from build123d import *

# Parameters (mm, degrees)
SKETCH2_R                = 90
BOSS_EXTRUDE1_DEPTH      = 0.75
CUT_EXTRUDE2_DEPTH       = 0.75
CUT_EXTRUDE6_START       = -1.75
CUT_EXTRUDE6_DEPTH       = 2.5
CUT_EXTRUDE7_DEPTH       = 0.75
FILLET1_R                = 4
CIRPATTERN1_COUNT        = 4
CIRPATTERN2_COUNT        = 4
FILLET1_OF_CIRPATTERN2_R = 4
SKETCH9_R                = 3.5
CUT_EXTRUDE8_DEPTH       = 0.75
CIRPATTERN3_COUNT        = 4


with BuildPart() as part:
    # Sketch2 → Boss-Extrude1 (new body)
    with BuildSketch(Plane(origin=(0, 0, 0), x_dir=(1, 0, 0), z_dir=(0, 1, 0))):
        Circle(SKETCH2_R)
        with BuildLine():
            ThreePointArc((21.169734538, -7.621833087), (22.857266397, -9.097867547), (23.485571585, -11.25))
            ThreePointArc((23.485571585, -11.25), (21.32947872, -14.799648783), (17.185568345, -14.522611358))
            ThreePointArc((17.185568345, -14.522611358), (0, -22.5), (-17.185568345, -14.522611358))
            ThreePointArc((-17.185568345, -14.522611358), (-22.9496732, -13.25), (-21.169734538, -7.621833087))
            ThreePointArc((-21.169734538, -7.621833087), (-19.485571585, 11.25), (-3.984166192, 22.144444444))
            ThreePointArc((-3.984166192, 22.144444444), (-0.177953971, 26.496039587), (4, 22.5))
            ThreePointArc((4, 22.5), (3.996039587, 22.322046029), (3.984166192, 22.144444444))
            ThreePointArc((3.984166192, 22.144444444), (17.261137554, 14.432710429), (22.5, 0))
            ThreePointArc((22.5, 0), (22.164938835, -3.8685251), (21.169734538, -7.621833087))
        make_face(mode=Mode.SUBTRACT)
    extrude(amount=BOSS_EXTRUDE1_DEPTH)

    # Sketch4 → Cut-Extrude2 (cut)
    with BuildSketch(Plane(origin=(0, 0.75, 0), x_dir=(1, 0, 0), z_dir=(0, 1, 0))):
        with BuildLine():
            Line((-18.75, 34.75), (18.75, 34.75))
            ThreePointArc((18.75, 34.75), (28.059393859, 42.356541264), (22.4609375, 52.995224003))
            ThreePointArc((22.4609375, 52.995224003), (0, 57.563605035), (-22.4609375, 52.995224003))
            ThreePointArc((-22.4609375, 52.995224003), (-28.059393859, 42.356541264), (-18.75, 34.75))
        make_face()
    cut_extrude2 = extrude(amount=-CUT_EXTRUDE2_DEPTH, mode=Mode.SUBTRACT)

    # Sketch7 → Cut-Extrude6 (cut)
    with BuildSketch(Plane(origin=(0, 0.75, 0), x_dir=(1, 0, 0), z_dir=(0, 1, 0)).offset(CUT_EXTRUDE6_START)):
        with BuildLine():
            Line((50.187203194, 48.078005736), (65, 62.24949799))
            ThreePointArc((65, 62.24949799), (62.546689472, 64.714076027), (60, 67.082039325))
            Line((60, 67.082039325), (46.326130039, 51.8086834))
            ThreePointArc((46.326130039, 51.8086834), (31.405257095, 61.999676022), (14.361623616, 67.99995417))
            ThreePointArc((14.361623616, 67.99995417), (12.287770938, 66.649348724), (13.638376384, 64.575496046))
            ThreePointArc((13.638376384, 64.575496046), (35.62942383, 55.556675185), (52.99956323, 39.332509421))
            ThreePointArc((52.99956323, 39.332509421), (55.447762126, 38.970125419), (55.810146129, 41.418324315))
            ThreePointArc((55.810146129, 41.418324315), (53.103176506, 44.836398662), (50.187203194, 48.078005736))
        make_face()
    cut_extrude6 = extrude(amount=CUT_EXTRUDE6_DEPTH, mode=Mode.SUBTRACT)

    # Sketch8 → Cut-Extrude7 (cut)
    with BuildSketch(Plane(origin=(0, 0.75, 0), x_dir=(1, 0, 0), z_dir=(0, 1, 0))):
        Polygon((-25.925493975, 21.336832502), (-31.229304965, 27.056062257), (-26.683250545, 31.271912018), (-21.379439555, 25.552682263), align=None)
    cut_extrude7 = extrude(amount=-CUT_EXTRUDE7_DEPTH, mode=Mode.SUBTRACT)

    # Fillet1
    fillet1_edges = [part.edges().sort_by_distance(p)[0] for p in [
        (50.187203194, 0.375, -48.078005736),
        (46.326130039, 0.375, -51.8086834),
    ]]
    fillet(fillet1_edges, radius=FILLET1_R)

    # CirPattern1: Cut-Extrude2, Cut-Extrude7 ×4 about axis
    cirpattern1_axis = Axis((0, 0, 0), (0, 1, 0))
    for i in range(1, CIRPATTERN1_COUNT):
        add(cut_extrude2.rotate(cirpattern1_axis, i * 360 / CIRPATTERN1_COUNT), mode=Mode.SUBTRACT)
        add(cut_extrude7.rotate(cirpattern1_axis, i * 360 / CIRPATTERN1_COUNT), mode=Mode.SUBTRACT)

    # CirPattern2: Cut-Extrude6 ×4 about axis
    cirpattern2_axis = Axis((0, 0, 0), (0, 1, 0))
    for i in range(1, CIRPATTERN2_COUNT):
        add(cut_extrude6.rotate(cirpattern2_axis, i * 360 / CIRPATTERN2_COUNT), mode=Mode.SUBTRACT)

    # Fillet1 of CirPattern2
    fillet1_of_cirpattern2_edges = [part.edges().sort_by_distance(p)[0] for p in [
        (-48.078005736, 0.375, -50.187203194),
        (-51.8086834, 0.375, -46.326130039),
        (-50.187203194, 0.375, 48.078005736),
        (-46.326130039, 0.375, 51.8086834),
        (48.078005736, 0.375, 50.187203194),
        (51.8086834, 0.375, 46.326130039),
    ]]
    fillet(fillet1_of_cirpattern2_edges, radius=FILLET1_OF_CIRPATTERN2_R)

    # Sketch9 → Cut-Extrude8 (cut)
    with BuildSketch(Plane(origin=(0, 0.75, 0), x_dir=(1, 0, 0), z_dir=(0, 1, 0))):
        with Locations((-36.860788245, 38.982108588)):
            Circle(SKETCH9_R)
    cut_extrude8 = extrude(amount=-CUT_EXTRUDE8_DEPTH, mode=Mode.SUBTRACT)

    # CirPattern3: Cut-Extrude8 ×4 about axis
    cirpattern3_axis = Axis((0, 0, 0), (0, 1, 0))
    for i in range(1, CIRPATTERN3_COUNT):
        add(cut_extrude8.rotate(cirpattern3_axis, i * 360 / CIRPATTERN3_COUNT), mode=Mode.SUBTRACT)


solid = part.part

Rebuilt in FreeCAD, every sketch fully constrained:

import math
import FreeCAD as App
import Part
import Sketcher
from FreeCAD import Vector
Q = App.Units.Quantity


def edges_at(feature, points):
    """Names of the edges that pass closest to the given points."""
    edges = feature.Shape.Edges
    near = lambda p: min(range(len(edges)), key=lambda i: edges[i].distToShape(Part.Vertex(*p))[0])
    return sorted({f"Edge{near(p) + 1}" for p in points})

doc = App.newDocument("Part")
params = doc.addObject("Spreadsheet::Sheet", "Params")
for row, (alias, value) in enumerate([
    ("sketch1_diameter", "180 mm"),
    ("sketch1_radius", "4 mm"),
    ("sketch1_radius2", "22.5 mm"),
    ("pad1_length", "0.75 mm"),
    ("sketch2_radius", "9.5 mm"),
    ("sketch2_radius2", "57.5 mm"),
    ("sketch2_width", "37.5 mm"),
    ("pocket1_length", "0.75 mm"),
    ("sketch3_radius", "90.000001 mm"),
    ("sketch3_radius2", "66 mm"),
    ("sketch3_radius3", "69.5 mm"),
    ("pocket2_length", "2.5 mm"),
    ("sketch4_length", "7.8 mm"),
    ("sketch4_length2", "6.2 mm"),
    ("pocket3_length", "0.75 mm"),
    ("fillet_radius", "4 mm"),
    ("fillet2_radius", "4 mm"),
    ("sketch5_diameter", "7 mm"),
    ("pocket4_length", "0.75 mm"),
], start=1):
    params.set(f"A{row}", alias)
    params.set(f"B{row}", "=" + value)
    params.setAlias(f"B{row}", alias)

body = doc.addObject("PartDesign::Body", "Body")

# Sketch on XZ plane
sketch1 = body.newObject("Sketcher::SketchObject", "Sketch")
sketch1.AttachmentSupport = (doc.getObject("XZ_Plane"), [""])
sketch1.MapMode = "FlatFace"
sketch1.addGeometry([
    Part.Circle(Vector(0, 0, 0), Vector(0, 0, 1), 90),  # 0
    Part.ArcOfCircle(Part.Circle(Vector(0, 0, 0), Vector(0, 0, 1), 22.5), math.radians(0), math.radians(19.8)),  # 1
    Part.ArcOfCircle(Part.Circle(Vector(19.49, 11.25, 0), Vector(0, 0, 1), 4), math.radians(-65), math.radians(0)),  # 2
    Part.ArcOfCircle(Part.Circle(Vector(19.49, 11.25, 0), Vector(0, 0, 1), 4), math.radians(0), math.radians(125)),  # 3
    Part.ArcOfCircle(Part.Circle(Vector(0, 0, 0), Vector(0, 0, 1), 22.5), math.radians(40), math.radians(140)),  # 4
    Part.ArcOfCircle(Part.Circle(Vector(-19.49, 11.25, 0), Vector(0, 0, 1), 4), math.radians(55), math.radians(245)),  # 5
    Part.ArcOfCircle(Part.Circle(Vector(0, 0, 0), Vector(0, 0, 1), 22.5), math.radians(160), math.radians(260)),  # 6
    Part.ArcOfCircle(Part.Circle(Vector(0, -22.5, 0), Vector(0, 0, 1), 4), math.radians(175), math.radians(360)),  # 7
    Part.ArcOfCircle(Part.Circle(Vector(0, -22.5, 0), Vector(0, 0, 1), 4), math.radians(0), math.radians(5.1)),  # 8
    Part.ArcOfCircle(Part.Circle(Vector(0, 0, 0), Vector(0, 0, 1), 22.5), math.radians(-80), math.radians(0)),  # 9
], False)
sketch1.addConstraint([
    Sketcher.Constraint("Coincident", 1, 2, 2, 1),
    Sketcher.Constraint("Tangent", 2, 2, 3, 1),
    Sketcher.Constraint("Coincident", 3, 2, 4, 1),
    Sketcher.Constraint("Coincident", 4, 2, 5, 1),
    Sketcher.Constraint("Coincident", 5, 2, 6, 1),
    Sketcher.Constraint("Coincident", 6, 2, 7, 1),
    Sketcher.Constraint("Tangent", 7, 2, 8, 1),
    Sketcher.Constraint("Coincident", 8, 2, 9, 1),
    Sketcher.Constraint("Tangent", 9, 2, 1, 1),
    Sketcher.Constraint("Coincident", 0, 3, -1, 1),
    Sketcher.Constraint("Coincident", 1, 3, -1, 1),
    Sketcher.Constraint("Coincident", 4, 3, -1, 1),
    Sketcher.Constraint("Coincident", 6, 3, -1, 1),
    Sketcher.Constraint("Equal", 2, 3),
    Sketcher.Constraint("Equal", 1, 4),
    Sketcher.Constraint("Equal", 3, 5),
    Sketcher.Constraint("Equal", 4, 6),
    Sketcher.Constraint("Equal", 5, 7),
    Sketcher.Constraint("Equal", 7, 8),
    Sketcher.Constraint("Equal", 6, 9),
    Sketcher.Constraint("Symmetric", 2, 3, 5, 3, -2),
    Sketcher.Constraint("PointOnObject", 7, 3, -2),
    Sketcher.Constraint("PointOnObject", 9, 2, -1),
    Sketcher.Constraint("Horizontal", 5, 3, 2, 2),
    Sketcher.Constraint("Horizontal", 8, 3, 7, 2),
    Sketcher.Constraint("Diameter", 0, Q("180 mm")),
    Sketcher.Constraint("Radius", 2, Q("4 mm")),
    Sketcher.Constraint("Radius", 1, Q("22.5 mm")),
    Sketcher.Constraint("DistanceY", 7, 3, -1, 1, Q("22.5 mm")),
    Sketcher.Constraint("DistanceY", -1, 1, 2, 3, Q("11.25 mm")),
    Sketcher.Constraint("DistanceX", -1, 1, 2, 3, Q("19.485572 mm")),
])
sketch1.setExpression("Constraints[25]", "Params.sketch1_diameter")
sketch1.setExpression("Constraints[26]", "Params.sketch1_radius")
sketch1.setExpression("Constraints[27]", "Params.sketch1_radius2")
pad1 = body.newObject("PartDesign::Pad", "Pad")
pad1.Profile = sketch1
pad1.setExpression("Length", "Params.pad1_length")
pad1.Reversed = True

# Sketch on XZ plane
sketch2 = body.newObject("Sketcher::SketchObject", "Sketch001")
sketch2.AttachmentSupport = (doc.getObject("XZ_Plane"), [""])
sketch2.MapMode = "FlatFace"
sketch2.AttachmentOffset = App.Placement(Vector(0, 0, -0.75), App.Rotation())
sketch2.addGeometry([
    Part.LineSegment(Vector(-19, -35, 0), Vector(19, -35, 0)),
    Part.ArcOfCircle(Part.Circle(Vector(19, -44, 0), Vector(0, 0, 1), 10), math.radians(-67), math.radians(90)),
    Part.ArcOfCircle(Part.Circle(Vector(0, 0, 0), Vector(0, 0, 1), 57), math.radians(-113), math.radians(-67)),
    Part.ArcOfCircle(Part.Circle(Vector(-19, -44, 0), Vector(0, 0, 1), 10), math.radians(90), math.radians(247)),
], False)
sketch2.addConstraint([
    Sketcher.Constraint("Tangent", 0, 2, 1, 2),
    Sketcher.Constraint("Tangent", 1, 1, 2, 2),
    Sketcher.Constraint("Tangent", 2, 1, 3, 2),
    Sketcher.Constraint("Tangent", 3, 1, 0, 1),
    Sketcher.Constraint("Horizontal", 0),
    Sketcher.Constraint("Equal", 1, 3),
    Sketcher.Constraint("PointOnObject", 2, 3, -2),
    Sketcher.Constraint("Radius", 1, Q("9.5 mm")),
    Sketcher.Constraint("Radius", 2, Q("57.5 mm")),
    Sketcher.Constraint("DistanceX", 0, 1, 0, 2, Q("37.5 mm")),
    Sketcher.Constraint("DistanceY", 1, 3, -1, 1, Q("44.25 mm")),
])
sketch2.setExpression("Constraints[7]", "Params.sketch2_radius")
sketch2.setExpression("Constraints[8]", "Params.sketch2_radius2")
sketch2.setExpression("Constraints[9]", "Params.sketch2_width")
pocket1 = body.newObject("PartDesign::Pocket", "Pocket")
pocket1.Profile = sketch2
pocket1.setExpression("Length", "Params.pocket1_length")
pocket1.Reversed = True

# Sketch on XZ plane
sketch3 = body.newObject("Sketcher::SketchObject", "Sketch002")
sketch3.AttachmentSupport = (doc.getObject("XZ_Plane"), [""])
sketch3.MapMode = "FlatFace"
sketch3.AttachmentOffset = App.Placement(Vector(0, 0, 1), App.Rotation())
sketch3.addGeometry([
    Part.LineSegment(Vector(50.2, -48.1, 0), Vector(65, -62.2, 0)),  # 0
    Part.ArcOfCircle(Part.Circle(Vector(0, 0, 0), Vector(0, 0, 1), 90), math.radians(-48.19), math.radians(-43.76)),  # 1
    Part.LineSegment(Vector(60, -67.1, 0), Vector(46.3, -51.8, 0)),  # 2
    Part.ArcOfCircle(Part.Circle(Vector(0, 0, 0), Vector(0, 0, 1), 69.5), math.radians(-78), math.radians(-48)),  # 3
    Part.ArcOfCircle(Part.Circle(Vector(14, -66.3, 0), Vector(0, 0, 1), 1.8), math.radians(102), math.radians(282)),  # 4
    Part.ArcOfCircle(Part.Circle(Vector(0, 0, 0), Vector(0, 0, 1), 66), math.radians(-78), math.radians(-37)),  # 5
    Part.ArcOfCircle(Part.Circle(Vector(54.4, -40.4, 0), Vector(0, 0, 1), 1.8), math.radians(-37), math.radians(143)),  # 6
    Part.ArcOfCircle(Part.Circle(Vector(0, 0, 0), Vector(0, 0, 1), 69.5), math.radians(-43.77), math.radians(-36.58)),  # 7
], False)
sketch3.addConstraint([
    Sketcher.Constraint("Coincident", 0, 2, 1, 2),
    Sketcher.Constraint("Coincident", 1, 1, 2, 1),
    Sketcher.Constraint("Coincident", 2, 2, 3, 2),
    Sketcher.Constraint("Tangent", 3, 1, 4, 2),
    Sketcher.Constraint("Tangent", 4, 1, 5, 1),
    Sketcher.Constraint("Tangent", 5, 2, 6, 2),
    Sketcher.Constraint("Tangent", 6, 1, 7, 2),
    Sketcher.Constraint("Coincident", 7, 1, 0, 1),
    Sketcher.Constraint("Coincident", 1, 3, -1, 1),
    Sketcher.Constraint("Coincident", 3, 3, -1, 1),
    Sketcher.Constraint("Coincident", 5, 3, -1, 1),
    Sketcher.Constraint("Coincident", 7, 3, -1, 1),
    Sketcher.Constraint("Equal", 4, 6),
    Sketcher.Constraint("Radius", 1, Q("90.000001 mm")),
    Sketcher.Constraint("Radius", 5, Q("66 mm")),
    Sketcher.Constraint("Radius", 3, Q("69.5 mm")),
    Sketcher.Constraint("DistanceX", -1, 1, 4, 3, Q("14 mm")),
    Sketcher.Constraint("DistanceX", -1, 1, 0, 2, Q("65 mm")),
    Sketcher.Constraint("DistanceX", -1, 1, 1, 1, Q("60 mm")),
    Sketcher.Constraint("DistanceX", -1, 1, 2, 2, Q("46.32613 mm")),
    Sketcher.Constraint("DistanceY", 5, 2, -1, 1, Q("39.332509 mm")),
    Sketcher.Constraint("DistanceY", 7, 1, 6, 1, Q("6.659681 mm")),
])
sketch3.setExpression("Constraints[13]", "Params.sketch3_radius")
sketch3.setExpression("Constraints[14]", "Params.sketch3_radius2")
sketch3.setExpression("Constraints[15]", "Params.sketch3_radius3")
pocket2 = body.newObject("PartDesign::Pocket", "Pocket001")
pocket2.Profile = sketch3
pocket2.setExpression("Length", "Params.pocket2_length")

# Sketch on XZ plane
sketch4 = body.newObject("Sketcher::SketchObject", "Sketch003")
sketch4.AttachmentSupport = (doc.getObject("XZ_Plane"), [""])
sketch4.MapMode = "FlatFace"
sketch4.AttachmentOffset = App.Placement(Vector(0, 0, -0.75), App.Rotation())
sketch4.addGeometry([
    Part.LineSegment(Vector(-31, -27, 0), Vector(-26, -21, 0)),
    Part.LineSegment(Vector(-26, -21, 0), Vector(-21, -26, 0)),
    Part.LineSegment(Vector(-21, -26, 0), Vector(-27, -31, 0)),
    Part.LineSegment(Vector(-27, -31, 0), Vector(-31, -27, 0)),
], False)
sketch4.addConstraint([
    Sketcher.Constraint("Coincident", 0, 2, 1, 1),
    Sketcher.Constraint("Coincident", 1, 2, 2, 1),
    Sketcher.Constraint("Coincident", 2, 2, 3, 1),
    Sketcher.Constraint("Coincident", 3, 2, 0, 1),
    Sketcher.Constraint("Perpendicular", 0, 1),
    Sketcher.Constraint("Perpendicular", 1, 2),
    Sketcher.Constraint("Perpendicular", 2, 3),
    Sketcher.Constraint("Distance", 0, Q("7.8 mm")),
    Sketcher.Constraint("Distance", 1, Q("6.2 mm")),
    Sketcher.Constraint("DistanceX", 1, 2, -1, 1, Q("21.37944 mm")),
    Sketcher.Constraint("DistanceX", 2, 2, -1, 1, Q("26.683251 mm")),
    Sketcher.Constraint("DistanceY", 0, 2, -1, 1, Q("21.336833 mm")),
])
sketch4.setExpression("Constraints[7]", "Params.sketch4_length")
sketch4.setExpression("Constraints[8]", "Params.sketch4_length2")
pocket3 = body.newObject("PartDesign::Pocket", "Pocket002")
pocket3.Profile = sketch4
pocket3.setExpression("Length", "Params.pocket3_length")
pocket3.Reversed = True
doc.recompute()

fillet = body.newObject("PartDesign::Fillet", "Fillet")
fillet.Base = (pocket3, edges_at(pocket3, [(50.187, 0.375, -48.078), (46.326, 0.375, -51.809)]))
fillet.setExpression("Radius", "Params.fillet_radius")
doc.recompute()

polarpattern = body.newObject("PartDesign::PolarPattern", "PolarPattern")
polarpattern.Originals = [pocket1, pocket3]
polarpattern.Axis = (doc.getObject("Y_Axis"), [""])
polarpattern.Angle = 360
polarpattern.Occurrences = 4
body.Tip = polarpattern
doc.recompute()

polarpattern2 = body.newObject("PartDesign::PolarPattern", "PolarPattern001")
polarpattern2.Originals = [pocket2]
polarpattern2.Axis = (doc.getObject("Y_Axis"), [""])
polarpattern2.Angle = 360
polarpattern2.Occurrences = 4
body.Tip = polarpattern2
doc.recompute()

fillet2 = body.newObject("PartDesign::Fillet", "Fillet001")
fillet2.Base = (polarpattern2, edges_at(polarpattern2, [
    (-48.078, 0.375, -50.187),
    (-51.809, 0.375, -46.326),
    (-50.187, 0.375, 48.078),
    (-46.326, 0.375, 51.809),
    (48.078, 0.375, 50.187),
    (51.809, 0.375, 46.326),
]))
fillet2.setExpression("Radius", "Params.fillet2_radius")

# Sketch on XZ plane
sketch5 = body.newObject("Sketcher::SketchObject", "Sketch004")
sketch5.AttachmentSupport = (doc.getObject("XZ_Plane"), [""])
sketch5.MapMode = "FlatFace"
sketch5.AttachmentOffset = App.Placement(Vector(0, 0, -0.75), App.Rotation())
sketch5.addGeometry(Part.Circle(Vector(-36.9, -39, 0), Vector(0, 0, 1), 3.5), False)
sketch5.addConstraint([
    Sketcher.Constraint("Diameter", 0, Q("7 mm")),
    Sketcher.Constraint("DistanceX", 0, 3, -1, 1, Q("36.860788 mm")),
    Sketcher.Constraint("DistanceY", 0, 3, -1, 1, Q("38.982109 mm")),
])
sketch5.setExpression("Constraints[0]", "Params.sketch5_diameter")
pocket4 = body.newObject("PartDesign::Pocket", "Pocket003")
pocket4.Profile = sketch5
pocket4.setExpression("Length", "Params.pocket4_length")
pocket4.Reversed = True
doc.recompute()

polarpattern3 = body.newObject("PartDesign::PolarPattern", "PolarPattern002")
polarpattern3.Originals = [pocket4]
polarpattern3.Axis = (doc.getObject("Y_Axis"), [""])
polarpattern3.Angle = 360
polarpattern3.Occurrences = 4
body.Tip = polarpattern3

doc.recompute()
